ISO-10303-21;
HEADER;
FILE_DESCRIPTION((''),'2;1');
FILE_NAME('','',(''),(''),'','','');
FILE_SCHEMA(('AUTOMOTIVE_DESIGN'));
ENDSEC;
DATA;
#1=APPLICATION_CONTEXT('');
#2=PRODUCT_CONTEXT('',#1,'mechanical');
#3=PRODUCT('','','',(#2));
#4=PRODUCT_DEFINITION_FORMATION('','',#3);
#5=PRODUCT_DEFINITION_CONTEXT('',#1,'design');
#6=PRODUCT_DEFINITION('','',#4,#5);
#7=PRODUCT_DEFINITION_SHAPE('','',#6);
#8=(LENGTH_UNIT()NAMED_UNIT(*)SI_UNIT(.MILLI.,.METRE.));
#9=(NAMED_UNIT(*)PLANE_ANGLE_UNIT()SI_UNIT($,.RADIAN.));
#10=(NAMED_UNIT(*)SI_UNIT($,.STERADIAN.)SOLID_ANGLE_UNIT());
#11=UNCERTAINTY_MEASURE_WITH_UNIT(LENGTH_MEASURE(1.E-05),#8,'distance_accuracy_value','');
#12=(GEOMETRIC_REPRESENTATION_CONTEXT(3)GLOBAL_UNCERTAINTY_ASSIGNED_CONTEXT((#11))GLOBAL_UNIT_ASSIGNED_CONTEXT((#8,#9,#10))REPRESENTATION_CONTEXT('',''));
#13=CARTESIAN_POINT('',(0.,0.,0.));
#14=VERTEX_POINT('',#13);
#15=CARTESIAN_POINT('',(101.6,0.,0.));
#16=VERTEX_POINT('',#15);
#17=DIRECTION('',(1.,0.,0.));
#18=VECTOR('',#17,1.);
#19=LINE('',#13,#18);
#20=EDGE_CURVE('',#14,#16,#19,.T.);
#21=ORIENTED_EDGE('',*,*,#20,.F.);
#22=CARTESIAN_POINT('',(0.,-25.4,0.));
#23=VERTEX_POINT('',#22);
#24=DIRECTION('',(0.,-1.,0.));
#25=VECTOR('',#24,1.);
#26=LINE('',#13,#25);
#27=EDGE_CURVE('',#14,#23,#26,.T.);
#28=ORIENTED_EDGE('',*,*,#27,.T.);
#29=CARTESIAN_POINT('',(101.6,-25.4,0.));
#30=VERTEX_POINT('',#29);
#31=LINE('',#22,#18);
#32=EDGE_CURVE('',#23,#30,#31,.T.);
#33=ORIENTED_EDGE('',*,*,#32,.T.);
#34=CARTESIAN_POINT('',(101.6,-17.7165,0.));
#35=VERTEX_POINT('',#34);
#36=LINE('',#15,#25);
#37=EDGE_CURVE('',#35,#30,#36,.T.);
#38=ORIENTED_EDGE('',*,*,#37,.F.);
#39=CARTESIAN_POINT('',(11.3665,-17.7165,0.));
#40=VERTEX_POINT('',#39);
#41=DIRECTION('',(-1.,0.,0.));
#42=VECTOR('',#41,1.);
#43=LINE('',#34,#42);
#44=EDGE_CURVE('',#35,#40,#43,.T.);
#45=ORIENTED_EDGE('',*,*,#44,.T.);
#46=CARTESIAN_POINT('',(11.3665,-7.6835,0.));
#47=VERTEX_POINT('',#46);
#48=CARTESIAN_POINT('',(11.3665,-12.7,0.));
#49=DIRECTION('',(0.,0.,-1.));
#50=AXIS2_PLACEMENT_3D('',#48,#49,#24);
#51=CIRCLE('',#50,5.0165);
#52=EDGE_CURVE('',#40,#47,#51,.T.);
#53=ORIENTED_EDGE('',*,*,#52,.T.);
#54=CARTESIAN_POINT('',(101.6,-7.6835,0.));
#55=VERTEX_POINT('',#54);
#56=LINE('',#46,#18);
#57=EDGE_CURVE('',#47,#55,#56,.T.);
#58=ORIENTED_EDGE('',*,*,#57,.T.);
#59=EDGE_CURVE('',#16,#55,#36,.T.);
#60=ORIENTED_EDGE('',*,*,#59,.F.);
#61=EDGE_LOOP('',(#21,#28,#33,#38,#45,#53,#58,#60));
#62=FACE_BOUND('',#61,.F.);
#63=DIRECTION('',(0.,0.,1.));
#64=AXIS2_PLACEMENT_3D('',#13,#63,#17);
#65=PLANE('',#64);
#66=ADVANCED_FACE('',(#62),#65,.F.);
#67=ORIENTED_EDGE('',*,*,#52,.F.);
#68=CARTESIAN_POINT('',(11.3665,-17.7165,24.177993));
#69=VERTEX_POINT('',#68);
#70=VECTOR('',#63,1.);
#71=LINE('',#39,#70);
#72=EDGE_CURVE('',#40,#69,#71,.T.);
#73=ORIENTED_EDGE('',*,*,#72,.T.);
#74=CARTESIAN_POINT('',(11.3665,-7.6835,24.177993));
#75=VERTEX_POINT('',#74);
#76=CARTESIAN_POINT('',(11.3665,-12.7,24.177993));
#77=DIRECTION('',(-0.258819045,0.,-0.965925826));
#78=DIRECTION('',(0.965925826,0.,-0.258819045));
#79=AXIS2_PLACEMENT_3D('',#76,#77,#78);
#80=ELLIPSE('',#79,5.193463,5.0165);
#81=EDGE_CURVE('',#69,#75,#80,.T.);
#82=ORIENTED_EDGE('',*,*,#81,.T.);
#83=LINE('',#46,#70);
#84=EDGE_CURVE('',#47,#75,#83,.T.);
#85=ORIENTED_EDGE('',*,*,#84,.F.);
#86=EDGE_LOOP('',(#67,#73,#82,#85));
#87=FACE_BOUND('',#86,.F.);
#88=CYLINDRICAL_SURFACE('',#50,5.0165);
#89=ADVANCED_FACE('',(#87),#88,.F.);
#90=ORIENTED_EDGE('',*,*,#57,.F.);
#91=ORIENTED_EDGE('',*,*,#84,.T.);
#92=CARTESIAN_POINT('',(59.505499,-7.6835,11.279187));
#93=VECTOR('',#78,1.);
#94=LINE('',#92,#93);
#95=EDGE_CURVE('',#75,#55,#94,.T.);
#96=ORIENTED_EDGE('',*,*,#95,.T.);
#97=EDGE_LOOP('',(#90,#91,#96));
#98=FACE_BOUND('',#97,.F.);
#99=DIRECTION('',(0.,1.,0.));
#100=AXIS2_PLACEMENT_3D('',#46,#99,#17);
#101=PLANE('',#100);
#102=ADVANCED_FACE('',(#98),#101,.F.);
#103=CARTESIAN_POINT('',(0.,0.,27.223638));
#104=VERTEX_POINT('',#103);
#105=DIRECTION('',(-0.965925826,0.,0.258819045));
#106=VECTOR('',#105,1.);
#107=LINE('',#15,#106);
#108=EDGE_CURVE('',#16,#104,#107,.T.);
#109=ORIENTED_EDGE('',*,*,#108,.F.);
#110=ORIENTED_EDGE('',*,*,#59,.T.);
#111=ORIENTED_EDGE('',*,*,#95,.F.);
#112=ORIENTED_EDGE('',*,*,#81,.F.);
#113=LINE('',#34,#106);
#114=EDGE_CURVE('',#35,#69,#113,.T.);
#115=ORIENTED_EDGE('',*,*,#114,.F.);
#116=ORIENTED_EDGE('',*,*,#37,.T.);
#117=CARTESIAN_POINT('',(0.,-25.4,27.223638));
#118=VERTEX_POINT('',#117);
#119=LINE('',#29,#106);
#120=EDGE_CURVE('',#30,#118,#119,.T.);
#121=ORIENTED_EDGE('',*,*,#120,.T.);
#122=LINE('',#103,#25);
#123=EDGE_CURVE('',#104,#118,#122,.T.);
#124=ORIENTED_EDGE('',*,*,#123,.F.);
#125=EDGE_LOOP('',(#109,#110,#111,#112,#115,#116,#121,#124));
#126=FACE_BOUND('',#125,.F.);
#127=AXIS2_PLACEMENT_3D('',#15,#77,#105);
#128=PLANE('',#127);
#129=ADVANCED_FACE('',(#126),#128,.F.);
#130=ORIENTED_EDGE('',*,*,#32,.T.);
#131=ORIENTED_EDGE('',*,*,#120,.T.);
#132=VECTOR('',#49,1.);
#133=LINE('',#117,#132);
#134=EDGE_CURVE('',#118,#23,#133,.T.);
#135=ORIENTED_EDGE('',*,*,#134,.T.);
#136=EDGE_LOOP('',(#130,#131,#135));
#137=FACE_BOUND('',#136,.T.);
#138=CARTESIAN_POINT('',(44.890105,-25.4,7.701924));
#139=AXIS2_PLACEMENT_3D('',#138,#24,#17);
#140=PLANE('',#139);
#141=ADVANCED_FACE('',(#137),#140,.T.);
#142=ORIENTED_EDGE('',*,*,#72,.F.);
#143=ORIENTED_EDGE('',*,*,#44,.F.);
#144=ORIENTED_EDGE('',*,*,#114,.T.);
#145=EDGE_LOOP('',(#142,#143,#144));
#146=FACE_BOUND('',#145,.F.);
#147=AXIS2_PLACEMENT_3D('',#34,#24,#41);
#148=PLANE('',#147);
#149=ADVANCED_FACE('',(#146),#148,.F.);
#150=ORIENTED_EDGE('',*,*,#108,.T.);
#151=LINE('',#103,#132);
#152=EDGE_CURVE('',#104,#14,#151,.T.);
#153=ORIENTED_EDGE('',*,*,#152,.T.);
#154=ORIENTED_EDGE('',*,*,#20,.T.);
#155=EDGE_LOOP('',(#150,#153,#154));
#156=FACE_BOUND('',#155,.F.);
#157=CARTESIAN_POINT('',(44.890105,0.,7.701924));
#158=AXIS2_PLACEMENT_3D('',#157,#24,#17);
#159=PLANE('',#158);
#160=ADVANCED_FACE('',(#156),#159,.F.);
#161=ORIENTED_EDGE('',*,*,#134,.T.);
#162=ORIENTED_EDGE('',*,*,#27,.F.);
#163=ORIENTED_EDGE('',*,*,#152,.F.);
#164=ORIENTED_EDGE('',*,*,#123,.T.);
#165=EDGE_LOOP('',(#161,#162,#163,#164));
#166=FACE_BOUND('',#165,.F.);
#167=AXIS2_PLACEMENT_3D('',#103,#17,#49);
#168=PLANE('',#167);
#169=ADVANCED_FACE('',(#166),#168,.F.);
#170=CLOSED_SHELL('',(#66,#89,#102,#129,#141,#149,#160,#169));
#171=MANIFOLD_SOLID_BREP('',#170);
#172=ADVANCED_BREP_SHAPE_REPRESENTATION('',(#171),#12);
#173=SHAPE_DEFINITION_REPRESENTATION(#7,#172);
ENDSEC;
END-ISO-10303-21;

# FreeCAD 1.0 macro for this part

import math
import FreeCAD as App
import Part
import Sketcher
from FreeCAD import Vector
Q = App.Units.Quantity

doc = App.newDocument("Part")
body = doc.addObject("PartDesign::Body", "Body")

sketch1 = doc.addObject("Sketcher::SketchObject", "Sketch")
body.addObject(sketch1)
sketch1.AttachmentSupport = (doc.XZ_Plane, [""])
sketch1.MapMode = "FlatFace"
sketch1.addGeometry([
    Part.LineSegment(Vector(0, 27.223638, 0), Vector(0, 0, 0)),
    Part.LineSegment(Vector(0, 0, 0), Vector(101.6, 0, 0)),
    Part.LineSegment(Vector(101.6, 0, 0), Vector(0, 27.223638, 0)),
], False)
sketch1.addConstraint([
    Sketcher.Constraint("Coincident", 0, 2, 1, 1),
    Sketcher.Constraint("Coincident", 1, 2, 2, 1),
    Sketcher.Constraint("Coincident", 2, 2, 0, 1),
    Sketcher.Constraint("Vertical", 0),
    Sketcher.Constraint("Horizontal", 1),
    Sketcher.Constraint("Coincident", 0, 2, -1, 1),
    Sketcher.Constraint("DistanceX", 1, 1, 1, 2, Q("4 in")),
    Sketcher.Constraint("Angle", 2, Q("165 deg")),
])
pad1 = doc.addObject("PartDesign::Pad", "Pad")
body.addObject(pad1)
pad1.Profile = sketch1
pad1.Length = Q("1 in")

sketch2 = doc.addObject("Sketcher::SketchObject", "Sketch001")
body.addObject(sketch2)
sketch2.AttachmentSupport = (doc.XY_Plane, [""])
sketch2.MapMode = "FlatFace"
sketch2.addGeometry([
    Part.ArcOfCircle(Part.Circle(Vector(11.3665, -12.7, 0), Vector(0, 0, 1), 5.0165), math.radians(90), math.radians(270)),
    Part.LineSegment(Vector(11.3665, -7.6835, 0), Vector(101.6, -7.6835, 0)),
    Part.LineSegment(Vector(101.6, -7.6835, 0), Vector(101.6, -17.7165, 0)),
    Part.LineSegment(Vector(101.6, -17.7165, 0), Vector(11.3665, -17.7165, 0)),
], False)
sketch2.addConstraint([
    Sketcher.Constraint("Tangent", 0, 1, 1, 1),
    Sketcher.Constraint("Coincident", 1, 2, 2, 1),
    Sketcher.Constraint("Coincident", 2, 2, 3, 1),
    Sketcher.Constraint("Tangent", 3, 2, 0, 2),
    Sketcher.Constraint("Horizontal", 1),
    Sketcher.Constraint("Vertical", 2),
    Sketcher.Constraint("Horizontal", 3),
    Sketcher.Constraint("DistanceX", -1, 1, 1, 2, Q("4 in")),
    Sketcher.Constraint("DistanceY", 0, 3, -1, 1, Q("0.5 in")),
    Sketcher.Constraint("Radius", 0, Q("0.1975 in")),
    Sketcher.Constraint("DistanceX", 1, 1, 1, 2, Q("3.5525 in")),
])
pocket1 = doc.addObject("PartDesign::Pocket", "Pocket")
body.addObject(pocket1)
pocket1.Profile = sketch2
pocket1.Type = "ThroughAll"
pocket1.Reversed = True

doc.recompute()
